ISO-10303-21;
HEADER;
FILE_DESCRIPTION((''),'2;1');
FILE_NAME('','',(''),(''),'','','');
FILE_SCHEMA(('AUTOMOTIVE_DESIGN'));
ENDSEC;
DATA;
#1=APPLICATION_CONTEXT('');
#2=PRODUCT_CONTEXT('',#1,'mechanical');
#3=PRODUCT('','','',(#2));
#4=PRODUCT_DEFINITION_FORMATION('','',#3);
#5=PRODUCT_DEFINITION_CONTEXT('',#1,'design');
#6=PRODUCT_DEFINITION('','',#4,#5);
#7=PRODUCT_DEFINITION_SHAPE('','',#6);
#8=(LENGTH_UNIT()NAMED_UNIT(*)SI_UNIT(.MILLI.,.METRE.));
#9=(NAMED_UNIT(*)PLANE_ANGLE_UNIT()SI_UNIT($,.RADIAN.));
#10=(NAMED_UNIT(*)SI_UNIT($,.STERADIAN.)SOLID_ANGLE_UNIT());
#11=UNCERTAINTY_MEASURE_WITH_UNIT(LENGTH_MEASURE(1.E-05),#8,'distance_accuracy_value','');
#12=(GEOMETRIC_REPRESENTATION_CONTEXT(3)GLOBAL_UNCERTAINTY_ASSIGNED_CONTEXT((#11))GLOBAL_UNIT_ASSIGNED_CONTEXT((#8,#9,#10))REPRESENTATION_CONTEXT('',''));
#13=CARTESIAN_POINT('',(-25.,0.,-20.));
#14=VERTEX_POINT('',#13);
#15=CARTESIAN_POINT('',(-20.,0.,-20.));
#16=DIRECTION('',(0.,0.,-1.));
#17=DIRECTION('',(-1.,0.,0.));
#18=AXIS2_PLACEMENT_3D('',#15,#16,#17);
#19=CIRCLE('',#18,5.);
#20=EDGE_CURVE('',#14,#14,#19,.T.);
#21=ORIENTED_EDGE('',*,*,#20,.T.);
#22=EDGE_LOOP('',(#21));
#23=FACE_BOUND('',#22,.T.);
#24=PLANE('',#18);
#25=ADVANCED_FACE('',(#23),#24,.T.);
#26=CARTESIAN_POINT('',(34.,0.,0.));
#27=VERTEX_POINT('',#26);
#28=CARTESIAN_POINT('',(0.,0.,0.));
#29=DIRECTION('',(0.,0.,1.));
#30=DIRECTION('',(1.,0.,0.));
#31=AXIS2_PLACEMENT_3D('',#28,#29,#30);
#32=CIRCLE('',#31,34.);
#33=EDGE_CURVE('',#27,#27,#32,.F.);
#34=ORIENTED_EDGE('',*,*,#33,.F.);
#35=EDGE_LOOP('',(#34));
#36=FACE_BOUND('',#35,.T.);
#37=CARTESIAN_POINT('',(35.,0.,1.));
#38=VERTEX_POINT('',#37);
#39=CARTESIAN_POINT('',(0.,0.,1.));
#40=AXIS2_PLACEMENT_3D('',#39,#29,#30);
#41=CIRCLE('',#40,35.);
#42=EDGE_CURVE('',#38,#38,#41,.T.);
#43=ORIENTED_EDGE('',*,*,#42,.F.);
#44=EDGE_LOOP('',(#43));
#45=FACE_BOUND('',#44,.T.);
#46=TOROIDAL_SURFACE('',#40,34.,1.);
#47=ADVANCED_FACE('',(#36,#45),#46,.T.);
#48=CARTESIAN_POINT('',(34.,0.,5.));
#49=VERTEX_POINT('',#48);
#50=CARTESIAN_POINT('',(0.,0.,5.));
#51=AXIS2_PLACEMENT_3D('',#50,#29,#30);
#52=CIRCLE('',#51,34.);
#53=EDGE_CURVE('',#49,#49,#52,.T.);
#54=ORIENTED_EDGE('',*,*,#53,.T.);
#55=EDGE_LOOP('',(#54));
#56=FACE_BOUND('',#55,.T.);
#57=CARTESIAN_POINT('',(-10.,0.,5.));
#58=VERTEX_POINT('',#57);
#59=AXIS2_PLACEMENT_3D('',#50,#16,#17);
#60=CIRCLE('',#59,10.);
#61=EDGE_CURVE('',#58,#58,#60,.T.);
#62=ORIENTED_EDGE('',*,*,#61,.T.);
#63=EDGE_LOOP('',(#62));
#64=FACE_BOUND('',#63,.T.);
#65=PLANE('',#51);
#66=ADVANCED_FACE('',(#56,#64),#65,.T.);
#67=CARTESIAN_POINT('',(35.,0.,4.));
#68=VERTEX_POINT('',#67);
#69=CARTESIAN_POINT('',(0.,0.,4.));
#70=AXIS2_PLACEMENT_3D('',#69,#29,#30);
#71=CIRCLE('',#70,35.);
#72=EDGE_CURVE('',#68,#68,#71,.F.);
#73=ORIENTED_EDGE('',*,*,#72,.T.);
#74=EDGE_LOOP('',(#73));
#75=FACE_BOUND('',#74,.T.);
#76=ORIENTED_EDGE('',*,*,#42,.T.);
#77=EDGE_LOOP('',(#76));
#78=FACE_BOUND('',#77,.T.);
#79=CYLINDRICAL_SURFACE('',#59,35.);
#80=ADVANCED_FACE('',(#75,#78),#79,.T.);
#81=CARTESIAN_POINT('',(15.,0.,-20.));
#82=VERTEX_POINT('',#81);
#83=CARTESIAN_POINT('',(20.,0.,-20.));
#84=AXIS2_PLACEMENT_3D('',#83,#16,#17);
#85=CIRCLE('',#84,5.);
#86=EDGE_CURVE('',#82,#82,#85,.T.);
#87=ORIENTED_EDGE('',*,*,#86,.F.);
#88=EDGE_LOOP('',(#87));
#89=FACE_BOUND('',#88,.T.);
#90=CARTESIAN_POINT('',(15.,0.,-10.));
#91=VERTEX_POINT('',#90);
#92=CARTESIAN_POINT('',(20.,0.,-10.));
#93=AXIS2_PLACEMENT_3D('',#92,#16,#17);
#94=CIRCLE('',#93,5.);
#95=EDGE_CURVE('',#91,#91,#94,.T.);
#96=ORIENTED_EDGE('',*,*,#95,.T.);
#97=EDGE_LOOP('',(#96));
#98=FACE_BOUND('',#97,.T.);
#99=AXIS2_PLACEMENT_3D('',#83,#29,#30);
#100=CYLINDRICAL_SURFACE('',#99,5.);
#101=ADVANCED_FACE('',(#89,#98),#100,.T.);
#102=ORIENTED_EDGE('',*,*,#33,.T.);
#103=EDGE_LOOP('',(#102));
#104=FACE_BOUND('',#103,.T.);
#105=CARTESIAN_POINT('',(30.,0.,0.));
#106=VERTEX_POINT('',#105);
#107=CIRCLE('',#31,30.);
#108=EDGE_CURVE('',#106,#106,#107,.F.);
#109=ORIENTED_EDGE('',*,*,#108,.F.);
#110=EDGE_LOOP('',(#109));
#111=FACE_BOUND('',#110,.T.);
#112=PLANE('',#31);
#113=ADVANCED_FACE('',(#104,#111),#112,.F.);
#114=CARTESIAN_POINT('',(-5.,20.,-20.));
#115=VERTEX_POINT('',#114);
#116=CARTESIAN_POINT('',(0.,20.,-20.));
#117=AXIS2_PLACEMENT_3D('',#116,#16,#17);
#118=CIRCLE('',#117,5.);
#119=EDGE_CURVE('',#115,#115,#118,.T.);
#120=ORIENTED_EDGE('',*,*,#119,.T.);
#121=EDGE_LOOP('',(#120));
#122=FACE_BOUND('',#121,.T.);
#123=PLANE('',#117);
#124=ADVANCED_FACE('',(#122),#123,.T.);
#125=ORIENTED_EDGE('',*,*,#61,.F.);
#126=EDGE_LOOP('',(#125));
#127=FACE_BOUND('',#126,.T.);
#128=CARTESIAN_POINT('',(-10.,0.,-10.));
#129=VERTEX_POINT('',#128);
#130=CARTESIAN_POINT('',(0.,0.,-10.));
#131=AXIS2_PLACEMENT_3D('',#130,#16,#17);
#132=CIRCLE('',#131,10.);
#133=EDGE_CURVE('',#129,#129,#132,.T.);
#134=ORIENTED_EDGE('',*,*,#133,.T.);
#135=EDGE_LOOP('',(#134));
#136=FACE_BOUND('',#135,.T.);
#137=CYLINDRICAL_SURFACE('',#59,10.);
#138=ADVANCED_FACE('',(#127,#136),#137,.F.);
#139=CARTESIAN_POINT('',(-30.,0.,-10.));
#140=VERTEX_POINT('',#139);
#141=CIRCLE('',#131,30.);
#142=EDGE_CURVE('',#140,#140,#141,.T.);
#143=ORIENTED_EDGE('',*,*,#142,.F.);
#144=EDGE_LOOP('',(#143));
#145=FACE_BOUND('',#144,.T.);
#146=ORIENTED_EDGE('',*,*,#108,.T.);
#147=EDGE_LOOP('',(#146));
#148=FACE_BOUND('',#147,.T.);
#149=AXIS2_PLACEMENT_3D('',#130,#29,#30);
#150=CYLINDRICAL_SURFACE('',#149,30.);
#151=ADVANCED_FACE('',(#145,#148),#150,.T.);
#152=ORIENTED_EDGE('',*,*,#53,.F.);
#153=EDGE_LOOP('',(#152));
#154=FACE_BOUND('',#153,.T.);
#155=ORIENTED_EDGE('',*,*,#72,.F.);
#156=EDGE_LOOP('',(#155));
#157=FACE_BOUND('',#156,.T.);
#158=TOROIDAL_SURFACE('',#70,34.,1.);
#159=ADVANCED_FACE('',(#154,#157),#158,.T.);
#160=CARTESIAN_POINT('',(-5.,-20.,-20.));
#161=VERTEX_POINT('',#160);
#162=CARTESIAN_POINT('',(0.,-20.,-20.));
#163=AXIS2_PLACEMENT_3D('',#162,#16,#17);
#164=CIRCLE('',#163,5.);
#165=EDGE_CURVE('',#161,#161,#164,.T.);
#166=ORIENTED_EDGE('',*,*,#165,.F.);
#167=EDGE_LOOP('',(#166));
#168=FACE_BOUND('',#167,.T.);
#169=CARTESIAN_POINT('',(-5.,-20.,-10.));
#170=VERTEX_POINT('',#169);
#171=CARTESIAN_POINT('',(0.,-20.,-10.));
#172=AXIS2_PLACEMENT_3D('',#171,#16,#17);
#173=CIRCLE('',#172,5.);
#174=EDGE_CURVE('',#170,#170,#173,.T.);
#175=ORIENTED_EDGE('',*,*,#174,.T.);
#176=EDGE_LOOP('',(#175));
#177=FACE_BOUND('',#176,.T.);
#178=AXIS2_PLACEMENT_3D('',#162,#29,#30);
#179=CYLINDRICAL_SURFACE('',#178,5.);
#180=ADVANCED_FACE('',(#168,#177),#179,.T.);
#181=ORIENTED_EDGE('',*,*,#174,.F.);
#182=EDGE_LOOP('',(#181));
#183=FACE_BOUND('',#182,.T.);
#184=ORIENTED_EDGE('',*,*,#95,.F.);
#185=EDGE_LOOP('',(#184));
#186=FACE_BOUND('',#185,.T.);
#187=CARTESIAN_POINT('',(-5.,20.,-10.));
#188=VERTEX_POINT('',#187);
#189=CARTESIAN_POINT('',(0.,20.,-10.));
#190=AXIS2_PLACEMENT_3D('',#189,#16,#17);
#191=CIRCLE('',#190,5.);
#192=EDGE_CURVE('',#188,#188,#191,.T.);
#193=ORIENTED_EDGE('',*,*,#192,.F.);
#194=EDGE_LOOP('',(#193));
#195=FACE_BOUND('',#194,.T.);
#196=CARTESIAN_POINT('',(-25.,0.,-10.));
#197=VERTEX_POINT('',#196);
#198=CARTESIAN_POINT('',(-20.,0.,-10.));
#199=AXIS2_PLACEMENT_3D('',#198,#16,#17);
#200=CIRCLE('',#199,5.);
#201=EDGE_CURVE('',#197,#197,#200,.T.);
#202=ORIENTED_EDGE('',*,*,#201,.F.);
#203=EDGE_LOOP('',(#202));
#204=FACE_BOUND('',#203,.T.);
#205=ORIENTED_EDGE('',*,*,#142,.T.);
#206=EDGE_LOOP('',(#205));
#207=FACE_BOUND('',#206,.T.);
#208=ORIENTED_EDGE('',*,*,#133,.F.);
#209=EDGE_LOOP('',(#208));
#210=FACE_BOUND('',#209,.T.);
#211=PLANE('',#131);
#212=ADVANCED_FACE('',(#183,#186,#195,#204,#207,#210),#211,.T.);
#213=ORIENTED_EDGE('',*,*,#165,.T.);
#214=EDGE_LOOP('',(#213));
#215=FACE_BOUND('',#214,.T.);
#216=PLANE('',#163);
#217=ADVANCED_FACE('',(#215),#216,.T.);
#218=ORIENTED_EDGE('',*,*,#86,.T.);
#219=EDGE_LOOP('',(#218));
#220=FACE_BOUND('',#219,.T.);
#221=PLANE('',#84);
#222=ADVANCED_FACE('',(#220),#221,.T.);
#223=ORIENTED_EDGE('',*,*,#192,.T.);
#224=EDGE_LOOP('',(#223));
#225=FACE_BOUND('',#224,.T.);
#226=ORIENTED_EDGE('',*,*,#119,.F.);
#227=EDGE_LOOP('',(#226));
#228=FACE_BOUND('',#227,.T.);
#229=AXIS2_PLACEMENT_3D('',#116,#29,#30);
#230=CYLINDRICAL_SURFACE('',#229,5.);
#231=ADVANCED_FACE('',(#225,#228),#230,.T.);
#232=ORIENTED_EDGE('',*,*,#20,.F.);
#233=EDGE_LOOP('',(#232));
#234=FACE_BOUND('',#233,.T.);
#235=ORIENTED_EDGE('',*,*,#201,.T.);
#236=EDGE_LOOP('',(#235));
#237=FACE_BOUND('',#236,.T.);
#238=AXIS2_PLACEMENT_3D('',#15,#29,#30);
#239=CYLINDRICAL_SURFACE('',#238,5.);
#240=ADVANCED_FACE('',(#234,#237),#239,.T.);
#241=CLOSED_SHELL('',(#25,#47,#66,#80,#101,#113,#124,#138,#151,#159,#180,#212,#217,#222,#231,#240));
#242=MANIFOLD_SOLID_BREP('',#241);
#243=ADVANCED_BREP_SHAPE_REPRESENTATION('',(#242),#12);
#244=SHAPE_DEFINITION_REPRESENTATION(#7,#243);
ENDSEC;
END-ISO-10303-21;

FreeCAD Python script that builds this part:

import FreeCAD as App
import Part
import Sketcher

V = App.Vector
Q = App.Units.Quantity


def edges_at(feature, points):
    """Names of the edges that pass closest to the given points."""
    edges = feature.Shape.Edges
    near = lambda p: min(range(len(edges)), key=lambda i: edges[i].distToShape(Part.Vertex(*p))[0])
    return sorted({f"Edge{near(p) + 1}" for p in points})

doc = App.newDocument("Part")
body = doc.addObject("PartDesign::Body", "Body")

# Sketch on XY plane
sketch1 = body.newObject("Sketcher::SketchObject", "Sketch")
sketch1.AttachmentSupport = (doc.getObject("XY_Plane"), [""])
sketch1.MapMode = "FlatFace"
sketch1.addGeometry(Part.Circle(V(0, 0, 0), V(0, 0, 1), 35), False)
sketch1.addConstraint([
    Sketcher.Constraint("Coincident", 0, 3, -1, 1),
    Sketcher.Constraint("Diameter", 0, Q("70 mm")),
])
pad1 = body.newObject("PartDesign::Pad", "Pad")
pad1.Profile = sketch1
pad1.Length = 5
doc.recompute()

fillet = body.newObject("PartDesign::Fillet", "Fillet")
fillet.Base = (pad1, edges_at(pad1, [(-35, 0, 0), (-35, 0, 5)]))
fillet.Radius = 1

# Sketch on XY plane
sketch2 = body.newObject("Sketcher::SketchObject", "Sketch001")
sketch2.AttachmentSupport = (doc.getObject("XY_Plane"), [""])
sketch2.MapMode = "FlatFace"
sketch2.addGeometry(Part.Circle(V(0, 0, 0), V(0, 0, 1), 30), False)
sketch2.addConstraint([
    Sketcher.Constraint("Coincident", 0, 3, -1, 1),
    Sketcher.Constraint("Diameter", 0, Q("60 mm")),
])
pad2 = body.newObject("PartDesign::Pad", "Pad001")
pad2.Profile = sketch2
pad2.Length = 10
pad2.Reversed = True

# Sketch on XY plane
sketch3 = body.newObject("Sketcher::SketchObject", "Sketch002")
sketch3.AttachmentSupport = (doc.getObject("XY_Plane"), [""])
sketch3.MapMode = "FlatFace"
sketch3.AttachmentOffset = App.Placement(V(0, 0, -10), App.Rotation())
sketch3.addGeometry([
    Part.Circle(V(0, 20, 0), V(0, 0, 1), 5),
    Part.Circle(V(-20, 0, 0), V(0, 0, 1), 5),
    Part.Circle(V(0, -20, 0), V(0, 0, 1), 5),
    Part.Circle(V(20, 0, 0), V(0, 0, 1), 5),
], False)
sketch3.addConstraint([
    Sketcher.Constraint("Equal", 0, 1),
    Sketcher.Constraint("Equal", 1, 2),
    Sketcher.Constraint("Equal", 2, 3),
    Sketcher.Constraint("Symmetric", 0, 3, 2, 3, -1, 1),
    Sketcher.Constraint("Symmetric", 1, 3, 3, 3, -1, 1),
    Sketcher.Constraint("PointOnObject", 0, 3, -2),
    Sketcher.Constraint("PointOnObject", 1, 3, -1),
    Sketcher.Constraint("Diameter", 0, Q("10 mm")),
    Sketcher.Constraint("DistanceY", -1, 1, 0, 3, Q("20 mm")),
    Sketcher.Constraint("DistanceX", 1, 3, -1, 1, Q("20 mm")),
])
pad3 = body.newObject("PartDesign::Pad", "Pad002")
pad3.Profile = sketch3
pad3.Length = 10
pad3.Reversed = True

# Sketch on XY plane
sketch4 = body.newObject("Sketcher::SketchObject", "Sketch003")
sketch4.AttachmentSupport = (doc.getObject("XY_Plane"), [""])
sketch4.MapMode = "FlatFace"
sketch4.AttachmentOffset = App.Placement(V(0, 0, -10), App.Rotation())
sketch4.addGeometry(Part.Circle(V(0, 0, 0), V(0, 0, 1), 10), False)
sketch4.addConstraint([
    Sketcher.Constraint("Coincident", 0, 3, -1, 1),
    Sketcher.Constraint("Diameter", 0, Q("20 mm")),
])
pocket1 = body.newObject("PartDesign::Pocket", "Pocket")
pocket1.Profile = sketch4
pocket1.Type = "ThroughAll"
pocket1.Reversed = True

doc.recompute()
